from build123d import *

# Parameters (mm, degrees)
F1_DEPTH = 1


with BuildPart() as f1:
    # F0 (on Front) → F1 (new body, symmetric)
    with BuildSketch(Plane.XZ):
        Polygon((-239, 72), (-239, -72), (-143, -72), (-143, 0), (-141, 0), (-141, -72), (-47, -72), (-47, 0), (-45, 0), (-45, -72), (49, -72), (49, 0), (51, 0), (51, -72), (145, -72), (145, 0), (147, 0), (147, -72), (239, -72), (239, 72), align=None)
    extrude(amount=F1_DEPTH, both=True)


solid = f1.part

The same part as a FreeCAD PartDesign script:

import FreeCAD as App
import Part
import Sketcher
from FreeCAD import Vector
Q = App.Units.Quantity

doc = App.newDocument("Part")
body = doc.addObject("PartDesign::Body", "Body")

sketch1 = body.newObject("Sketcher::SketchObject", "Sketch")
sketch1.AttachmentSupport = (doc.getObject("XZ_Plane"), [""])
sketch1.MapMode = "FlatFace"
sketch1.addGeometry([
    Part.LineSegment(Vector(-239, 72, 0), Vector(-239, -72, 0)),
    Part.LineSegment(Vector(-239, -72, 0), Vector(-143, -72, 0)),
    Part.LineSegment(Vector(-143, -72, 0), Vector(-143, 0, 0)),
    Part.LineSegment(Vector(-143, 0, 0), Vector(-141, 0, 0)),
    Part.LineSegment(Vector(-141, 0, 0), Vector(-141, -72, 0)),
    Part.LineSegment(Vector(-141, -72, 0), Vector(-47, -72, 0)),
    Part.LineSegment(Vector(-47, -72, 0), Vector(-47, 0, 0)),
    Part.LineSegment(Vector(-47, 0, 0), Vector(-45, 0, 0)),
    Part.LineSegment(Vector(-45, 0, 0), Vector(-45, -72, 0)),
    Part.LineSegment(Vector(-45, -72, 0), Vector(49, -72, 0)),
    Part.LineSegment(Vector(49, -72, 0), Vector(49, 0, 0)),
    Part.LineSegment(Vector(49, 0, 0), Vector(51, 0, 0)),
    Part.LineSegment(Vector(51, 0, 0), Vector(51, -72, 0)),
    Part.LineSegment(Vector(51, -72, 0), Vector(145, -72, 0)),
    Part.LineSegment(Vector(145, -72, 0), Vector(145, 0, 0)),
    Part.LineSegment(Vector(145, 0, 0), Vector(147, 0, 0)),
    Part.LineSegment(Vector(147, 0, 0), Vector(147, -72, 0)),
    Part.LineSegment(Vector(147, -72, 0), Vector(239, -72, 0)),
    Part.LineSegment(Vector(239, -72, 0), Vector(239, 72, 0)),
    Part.LineSegment(Vector(239, 72, 0), Vector(-239, 72, 0)),
], False)
sketch1.addConstraint([
    Sketcher.Constraint("Coincident", 0, 2, 1, 1),
    Sketcher.Constraint("Coincident", 1, 2, 2, 1),
    Sketcher.Constraint("Coincident", 2, 2, 3, 1),
    Sketcher.Constraint("Coincident", 3, 2, 4, 1),
    Sketcher.Constraint("Coincident", 4, 2, 5, 1),
    Sketcher.Constraint("Coincident", 5, 2, 6, 1),
    Sketcher.Constraint("Coincident", 6, 2, 7, 1),
    Sketcher.Constraint("Coincident", 7, 2, 8, 1),
    Sketcher.Constraint("Coincident", 8, 2, 9, 1),
    Sketcher.Constraint("Coincident", 9, 2, 10, 1),
    Sketcher.Constraint("Coincident", 10, 2, 11, 1),
    Sketcher.Constraint("Coincident", 11, 2, 12, 1),
    Sketcher.Constraint("Coincident", 12, 2, 13, 1),
    Sketcher.Constraint("Coincident", 13, 2, 14, 1),
    Sketcher.Constraint("Coincident", 14, 2, 15, 1),
    Sketcher.Constraint("Coincident", 15, 2, 16, 1),
    Sketcher.Constraint("Coincident", 16, 2, 17, 1),
    Sketcher.Constraint("Coincident", 17, 2, 18, 1),
    Sketcher.Constraint("Coincident", 18, 2, 19, 1),
    Sketcher.Constraint("Coincident", 19, 2, 0, 1),
    Sketcher.Constraint("Vertical", 0),
    Sketcher.Constraint("Horizontal", 1),
    Sketcher.Constraint("Vertical", 2),
    Sketcher.Constraint("Horizontal", 3),
    Sketcher.Constraint("Vertical", 4),
    Sketcher.Constraint("Horizontal", 5),
    Sketcher.Constraint("Vertical", 6),
    Sketcher.Constraint("Horizontal", 7),
    Sketcher.Constraint("Vertical", 8),
    Sketcher.Constraint("Horizontal", 9),
    Sketcher.Constraint("Vertical", 10),
    Sketcher.Constraint("Horizontal", 11),
    Sketcher.Constraint("Vertical", 12),
    Sketcher.Constraint("Horizontal", 13),
    Sketcher.Constraint("Vertical", 14),
    Sketcher.Constraint("Horizontal", 15),
    Sketcher.Constraint("Vertical", 16),
    Sketcher.Constraint("Horizontal", 17),
    Sketcher.Constraint("Vertical", 18),
    Sketcher.Constraint("Horizontal", 19),
    Sketcher.Constraint("Symmetric", 0, 2, 18, 2, -1, 1),
    Sketcher.Constraint("PointOnObject", 2, 2, -1),
    Sketcher.Constraint("PointOnObject", 6, 2, -1),
    Sketcher.Constraint("PointOnObject", 10, 2, -1),
    Sketcher.Constraint("PointOnObject", 14, 2, -1),
    Sketcher.Constraint("Horizontal", 1, 2, 4, 2),
    Sketcher.Constraint("Horizontal", 5, 2, 8, 2),
    Sketcher.Constraint("Horizontal", 9, 2, 12, 2),
    Sketcher.Constraint("Horizontal", 13, 2, 16, 2),
    Sketcher.Constraint("Equal", 3, 7),
    Sketcher.Constraint("Equal", 5, 9),
    Sketcher.Constraint("Equal", 7, 11),
    Sketcher.Constraint("Equal", 9, 13),
    Sketcher.Constraint("Equal", 11, 15),
    Sketcher.Constraint("DistanceX", 1, 1, 1, 2, Q("96 mm")),
    Sketcher.Constraint("DistanceX", 3, 1, 3, 2, Q("2 mm")),
    Sketcher.Constraint("DistanceX", 5, 1, 5, 2, Q("94 mm")),
    Sketcher.Constraint("DistanceX", 17, 1, 17, 2, Q("92 mm")),
    Sketcher.Constraint("DistanceY", 0, 2, 0, 1, Q("144 mm")),
])
pad1 = body.newObject("PartDesign::Pad", "Pad")
pad1.Profile = sketch1
pad1.Length = 2
pad1.Midplane = True

doc.recompute()
